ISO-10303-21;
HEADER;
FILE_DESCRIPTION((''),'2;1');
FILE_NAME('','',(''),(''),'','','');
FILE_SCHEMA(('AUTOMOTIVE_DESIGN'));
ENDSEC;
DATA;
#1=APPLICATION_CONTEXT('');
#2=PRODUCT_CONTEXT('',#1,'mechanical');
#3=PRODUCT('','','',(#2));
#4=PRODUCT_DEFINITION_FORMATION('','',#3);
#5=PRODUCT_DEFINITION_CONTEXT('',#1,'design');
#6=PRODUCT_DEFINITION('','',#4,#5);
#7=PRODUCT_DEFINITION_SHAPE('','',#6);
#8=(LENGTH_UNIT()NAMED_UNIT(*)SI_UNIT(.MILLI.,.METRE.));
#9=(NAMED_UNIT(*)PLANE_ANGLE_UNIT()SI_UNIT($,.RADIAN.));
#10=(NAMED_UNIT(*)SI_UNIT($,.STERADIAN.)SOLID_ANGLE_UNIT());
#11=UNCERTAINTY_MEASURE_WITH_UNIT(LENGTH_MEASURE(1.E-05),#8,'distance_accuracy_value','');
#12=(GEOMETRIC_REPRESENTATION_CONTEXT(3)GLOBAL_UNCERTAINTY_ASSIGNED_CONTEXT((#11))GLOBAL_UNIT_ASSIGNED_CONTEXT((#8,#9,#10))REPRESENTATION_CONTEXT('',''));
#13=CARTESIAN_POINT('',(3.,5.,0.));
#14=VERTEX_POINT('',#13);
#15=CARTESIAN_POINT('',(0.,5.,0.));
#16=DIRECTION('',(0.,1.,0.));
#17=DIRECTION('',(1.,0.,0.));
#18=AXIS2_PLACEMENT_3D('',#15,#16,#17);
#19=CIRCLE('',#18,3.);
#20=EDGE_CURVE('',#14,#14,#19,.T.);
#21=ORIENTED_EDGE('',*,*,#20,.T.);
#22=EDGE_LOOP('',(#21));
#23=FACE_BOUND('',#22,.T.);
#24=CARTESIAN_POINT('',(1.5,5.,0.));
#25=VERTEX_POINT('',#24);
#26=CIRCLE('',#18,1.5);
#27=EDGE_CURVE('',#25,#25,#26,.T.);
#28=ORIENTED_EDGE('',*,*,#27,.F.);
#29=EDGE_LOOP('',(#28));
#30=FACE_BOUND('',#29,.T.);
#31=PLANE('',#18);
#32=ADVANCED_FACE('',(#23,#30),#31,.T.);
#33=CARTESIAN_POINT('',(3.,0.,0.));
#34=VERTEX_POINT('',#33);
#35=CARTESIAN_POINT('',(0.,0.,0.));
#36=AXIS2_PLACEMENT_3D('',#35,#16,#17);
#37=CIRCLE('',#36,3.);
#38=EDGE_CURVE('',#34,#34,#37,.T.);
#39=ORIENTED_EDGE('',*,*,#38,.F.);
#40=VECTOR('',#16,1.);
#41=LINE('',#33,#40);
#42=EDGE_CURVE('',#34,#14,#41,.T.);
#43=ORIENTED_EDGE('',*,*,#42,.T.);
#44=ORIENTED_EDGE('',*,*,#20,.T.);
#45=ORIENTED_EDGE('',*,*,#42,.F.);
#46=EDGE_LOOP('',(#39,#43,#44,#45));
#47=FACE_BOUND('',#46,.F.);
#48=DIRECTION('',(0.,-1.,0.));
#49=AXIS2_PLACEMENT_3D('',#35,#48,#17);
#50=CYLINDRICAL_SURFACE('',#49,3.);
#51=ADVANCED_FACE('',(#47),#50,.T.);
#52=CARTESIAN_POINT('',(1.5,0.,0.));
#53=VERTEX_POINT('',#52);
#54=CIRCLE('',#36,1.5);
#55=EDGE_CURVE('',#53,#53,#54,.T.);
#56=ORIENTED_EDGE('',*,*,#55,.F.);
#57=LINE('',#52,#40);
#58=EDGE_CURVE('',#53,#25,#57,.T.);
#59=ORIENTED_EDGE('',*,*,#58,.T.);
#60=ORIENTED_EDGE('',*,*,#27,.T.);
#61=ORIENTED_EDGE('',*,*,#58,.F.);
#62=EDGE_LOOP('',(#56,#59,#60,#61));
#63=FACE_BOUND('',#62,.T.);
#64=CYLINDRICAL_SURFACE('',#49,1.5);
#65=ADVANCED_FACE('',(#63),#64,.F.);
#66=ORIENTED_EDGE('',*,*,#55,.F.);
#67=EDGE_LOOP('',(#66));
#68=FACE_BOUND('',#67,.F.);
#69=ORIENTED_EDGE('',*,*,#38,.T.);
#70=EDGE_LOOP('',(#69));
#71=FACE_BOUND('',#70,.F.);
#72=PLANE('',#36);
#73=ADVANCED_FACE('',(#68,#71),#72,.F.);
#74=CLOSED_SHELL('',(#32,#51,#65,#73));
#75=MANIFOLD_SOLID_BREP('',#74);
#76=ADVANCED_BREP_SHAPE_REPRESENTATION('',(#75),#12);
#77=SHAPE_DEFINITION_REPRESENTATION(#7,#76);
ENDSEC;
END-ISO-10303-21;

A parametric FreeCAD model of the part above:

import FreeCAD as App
import Part
import Sketcher
from FreeCAD import Vector

doc = App.newDocument("Part")
params = doc.addObject("Spreadsheet::Sheet", "Params")
for row, (alias, value) in enumerate([
    ("sketch1_diameter", "6 mm"),
    ("sketch1_diameter2", "3 mm"),
    ("pad1_length", "5 mm"),
], start=1):
    params.set(f"A{row}", alias)
    params.set(f"B{row}", "=" + value)
    params.setAlias(f"B{row}", alias)

body = doc.addObject("PartDesign::Body", "Body")

# Sketch on XZ plane
sketch1 = doc.addObject("Sketcher::SketchObject", "Sketch")
body.addObject(sketch1)
sketch1.AttachmentSupport = (doc.XZ_Plane, [""])
sketch1.MapMode = "FlatFace"
sketch1.addGeometry(Part.Circle(Vector(0, 0, 0), Vector(0, 0, 1), 3), False)
sketch1.addGeometry(Part.Circle(Vector(0, 0, 0), Vector(0, 0, 1), 1.5), False)
sketch1.addConstraint(Sketcher.Constraint("Coincident", 0, 3, -1, 1))
sketch1.addConstraint(Sketcher.Constraint("Coincident", 1, 3, -1, 1))
sketch1.addConstraint(Sketcher.Constraint("Diameter", 0, 6.0))
sketch1.addConstraint(Sketcher.Constraint("Diameter", 1, 3.0))
sketch1.setExpression("Constraints[2]", "Params.sketch1_diameter")
sketch1.setExpression("Constraints[3]", "Params.sketch1_diameter2")
pad1 = doc.addObject("PartDesign::Pad", "Pad")
body.addObject(pad1)
pad1.Profile = sketch1
pad1.setExpression("Length", "Params.pad1_length")
pad1.Reversed = True

doc.recompute()
